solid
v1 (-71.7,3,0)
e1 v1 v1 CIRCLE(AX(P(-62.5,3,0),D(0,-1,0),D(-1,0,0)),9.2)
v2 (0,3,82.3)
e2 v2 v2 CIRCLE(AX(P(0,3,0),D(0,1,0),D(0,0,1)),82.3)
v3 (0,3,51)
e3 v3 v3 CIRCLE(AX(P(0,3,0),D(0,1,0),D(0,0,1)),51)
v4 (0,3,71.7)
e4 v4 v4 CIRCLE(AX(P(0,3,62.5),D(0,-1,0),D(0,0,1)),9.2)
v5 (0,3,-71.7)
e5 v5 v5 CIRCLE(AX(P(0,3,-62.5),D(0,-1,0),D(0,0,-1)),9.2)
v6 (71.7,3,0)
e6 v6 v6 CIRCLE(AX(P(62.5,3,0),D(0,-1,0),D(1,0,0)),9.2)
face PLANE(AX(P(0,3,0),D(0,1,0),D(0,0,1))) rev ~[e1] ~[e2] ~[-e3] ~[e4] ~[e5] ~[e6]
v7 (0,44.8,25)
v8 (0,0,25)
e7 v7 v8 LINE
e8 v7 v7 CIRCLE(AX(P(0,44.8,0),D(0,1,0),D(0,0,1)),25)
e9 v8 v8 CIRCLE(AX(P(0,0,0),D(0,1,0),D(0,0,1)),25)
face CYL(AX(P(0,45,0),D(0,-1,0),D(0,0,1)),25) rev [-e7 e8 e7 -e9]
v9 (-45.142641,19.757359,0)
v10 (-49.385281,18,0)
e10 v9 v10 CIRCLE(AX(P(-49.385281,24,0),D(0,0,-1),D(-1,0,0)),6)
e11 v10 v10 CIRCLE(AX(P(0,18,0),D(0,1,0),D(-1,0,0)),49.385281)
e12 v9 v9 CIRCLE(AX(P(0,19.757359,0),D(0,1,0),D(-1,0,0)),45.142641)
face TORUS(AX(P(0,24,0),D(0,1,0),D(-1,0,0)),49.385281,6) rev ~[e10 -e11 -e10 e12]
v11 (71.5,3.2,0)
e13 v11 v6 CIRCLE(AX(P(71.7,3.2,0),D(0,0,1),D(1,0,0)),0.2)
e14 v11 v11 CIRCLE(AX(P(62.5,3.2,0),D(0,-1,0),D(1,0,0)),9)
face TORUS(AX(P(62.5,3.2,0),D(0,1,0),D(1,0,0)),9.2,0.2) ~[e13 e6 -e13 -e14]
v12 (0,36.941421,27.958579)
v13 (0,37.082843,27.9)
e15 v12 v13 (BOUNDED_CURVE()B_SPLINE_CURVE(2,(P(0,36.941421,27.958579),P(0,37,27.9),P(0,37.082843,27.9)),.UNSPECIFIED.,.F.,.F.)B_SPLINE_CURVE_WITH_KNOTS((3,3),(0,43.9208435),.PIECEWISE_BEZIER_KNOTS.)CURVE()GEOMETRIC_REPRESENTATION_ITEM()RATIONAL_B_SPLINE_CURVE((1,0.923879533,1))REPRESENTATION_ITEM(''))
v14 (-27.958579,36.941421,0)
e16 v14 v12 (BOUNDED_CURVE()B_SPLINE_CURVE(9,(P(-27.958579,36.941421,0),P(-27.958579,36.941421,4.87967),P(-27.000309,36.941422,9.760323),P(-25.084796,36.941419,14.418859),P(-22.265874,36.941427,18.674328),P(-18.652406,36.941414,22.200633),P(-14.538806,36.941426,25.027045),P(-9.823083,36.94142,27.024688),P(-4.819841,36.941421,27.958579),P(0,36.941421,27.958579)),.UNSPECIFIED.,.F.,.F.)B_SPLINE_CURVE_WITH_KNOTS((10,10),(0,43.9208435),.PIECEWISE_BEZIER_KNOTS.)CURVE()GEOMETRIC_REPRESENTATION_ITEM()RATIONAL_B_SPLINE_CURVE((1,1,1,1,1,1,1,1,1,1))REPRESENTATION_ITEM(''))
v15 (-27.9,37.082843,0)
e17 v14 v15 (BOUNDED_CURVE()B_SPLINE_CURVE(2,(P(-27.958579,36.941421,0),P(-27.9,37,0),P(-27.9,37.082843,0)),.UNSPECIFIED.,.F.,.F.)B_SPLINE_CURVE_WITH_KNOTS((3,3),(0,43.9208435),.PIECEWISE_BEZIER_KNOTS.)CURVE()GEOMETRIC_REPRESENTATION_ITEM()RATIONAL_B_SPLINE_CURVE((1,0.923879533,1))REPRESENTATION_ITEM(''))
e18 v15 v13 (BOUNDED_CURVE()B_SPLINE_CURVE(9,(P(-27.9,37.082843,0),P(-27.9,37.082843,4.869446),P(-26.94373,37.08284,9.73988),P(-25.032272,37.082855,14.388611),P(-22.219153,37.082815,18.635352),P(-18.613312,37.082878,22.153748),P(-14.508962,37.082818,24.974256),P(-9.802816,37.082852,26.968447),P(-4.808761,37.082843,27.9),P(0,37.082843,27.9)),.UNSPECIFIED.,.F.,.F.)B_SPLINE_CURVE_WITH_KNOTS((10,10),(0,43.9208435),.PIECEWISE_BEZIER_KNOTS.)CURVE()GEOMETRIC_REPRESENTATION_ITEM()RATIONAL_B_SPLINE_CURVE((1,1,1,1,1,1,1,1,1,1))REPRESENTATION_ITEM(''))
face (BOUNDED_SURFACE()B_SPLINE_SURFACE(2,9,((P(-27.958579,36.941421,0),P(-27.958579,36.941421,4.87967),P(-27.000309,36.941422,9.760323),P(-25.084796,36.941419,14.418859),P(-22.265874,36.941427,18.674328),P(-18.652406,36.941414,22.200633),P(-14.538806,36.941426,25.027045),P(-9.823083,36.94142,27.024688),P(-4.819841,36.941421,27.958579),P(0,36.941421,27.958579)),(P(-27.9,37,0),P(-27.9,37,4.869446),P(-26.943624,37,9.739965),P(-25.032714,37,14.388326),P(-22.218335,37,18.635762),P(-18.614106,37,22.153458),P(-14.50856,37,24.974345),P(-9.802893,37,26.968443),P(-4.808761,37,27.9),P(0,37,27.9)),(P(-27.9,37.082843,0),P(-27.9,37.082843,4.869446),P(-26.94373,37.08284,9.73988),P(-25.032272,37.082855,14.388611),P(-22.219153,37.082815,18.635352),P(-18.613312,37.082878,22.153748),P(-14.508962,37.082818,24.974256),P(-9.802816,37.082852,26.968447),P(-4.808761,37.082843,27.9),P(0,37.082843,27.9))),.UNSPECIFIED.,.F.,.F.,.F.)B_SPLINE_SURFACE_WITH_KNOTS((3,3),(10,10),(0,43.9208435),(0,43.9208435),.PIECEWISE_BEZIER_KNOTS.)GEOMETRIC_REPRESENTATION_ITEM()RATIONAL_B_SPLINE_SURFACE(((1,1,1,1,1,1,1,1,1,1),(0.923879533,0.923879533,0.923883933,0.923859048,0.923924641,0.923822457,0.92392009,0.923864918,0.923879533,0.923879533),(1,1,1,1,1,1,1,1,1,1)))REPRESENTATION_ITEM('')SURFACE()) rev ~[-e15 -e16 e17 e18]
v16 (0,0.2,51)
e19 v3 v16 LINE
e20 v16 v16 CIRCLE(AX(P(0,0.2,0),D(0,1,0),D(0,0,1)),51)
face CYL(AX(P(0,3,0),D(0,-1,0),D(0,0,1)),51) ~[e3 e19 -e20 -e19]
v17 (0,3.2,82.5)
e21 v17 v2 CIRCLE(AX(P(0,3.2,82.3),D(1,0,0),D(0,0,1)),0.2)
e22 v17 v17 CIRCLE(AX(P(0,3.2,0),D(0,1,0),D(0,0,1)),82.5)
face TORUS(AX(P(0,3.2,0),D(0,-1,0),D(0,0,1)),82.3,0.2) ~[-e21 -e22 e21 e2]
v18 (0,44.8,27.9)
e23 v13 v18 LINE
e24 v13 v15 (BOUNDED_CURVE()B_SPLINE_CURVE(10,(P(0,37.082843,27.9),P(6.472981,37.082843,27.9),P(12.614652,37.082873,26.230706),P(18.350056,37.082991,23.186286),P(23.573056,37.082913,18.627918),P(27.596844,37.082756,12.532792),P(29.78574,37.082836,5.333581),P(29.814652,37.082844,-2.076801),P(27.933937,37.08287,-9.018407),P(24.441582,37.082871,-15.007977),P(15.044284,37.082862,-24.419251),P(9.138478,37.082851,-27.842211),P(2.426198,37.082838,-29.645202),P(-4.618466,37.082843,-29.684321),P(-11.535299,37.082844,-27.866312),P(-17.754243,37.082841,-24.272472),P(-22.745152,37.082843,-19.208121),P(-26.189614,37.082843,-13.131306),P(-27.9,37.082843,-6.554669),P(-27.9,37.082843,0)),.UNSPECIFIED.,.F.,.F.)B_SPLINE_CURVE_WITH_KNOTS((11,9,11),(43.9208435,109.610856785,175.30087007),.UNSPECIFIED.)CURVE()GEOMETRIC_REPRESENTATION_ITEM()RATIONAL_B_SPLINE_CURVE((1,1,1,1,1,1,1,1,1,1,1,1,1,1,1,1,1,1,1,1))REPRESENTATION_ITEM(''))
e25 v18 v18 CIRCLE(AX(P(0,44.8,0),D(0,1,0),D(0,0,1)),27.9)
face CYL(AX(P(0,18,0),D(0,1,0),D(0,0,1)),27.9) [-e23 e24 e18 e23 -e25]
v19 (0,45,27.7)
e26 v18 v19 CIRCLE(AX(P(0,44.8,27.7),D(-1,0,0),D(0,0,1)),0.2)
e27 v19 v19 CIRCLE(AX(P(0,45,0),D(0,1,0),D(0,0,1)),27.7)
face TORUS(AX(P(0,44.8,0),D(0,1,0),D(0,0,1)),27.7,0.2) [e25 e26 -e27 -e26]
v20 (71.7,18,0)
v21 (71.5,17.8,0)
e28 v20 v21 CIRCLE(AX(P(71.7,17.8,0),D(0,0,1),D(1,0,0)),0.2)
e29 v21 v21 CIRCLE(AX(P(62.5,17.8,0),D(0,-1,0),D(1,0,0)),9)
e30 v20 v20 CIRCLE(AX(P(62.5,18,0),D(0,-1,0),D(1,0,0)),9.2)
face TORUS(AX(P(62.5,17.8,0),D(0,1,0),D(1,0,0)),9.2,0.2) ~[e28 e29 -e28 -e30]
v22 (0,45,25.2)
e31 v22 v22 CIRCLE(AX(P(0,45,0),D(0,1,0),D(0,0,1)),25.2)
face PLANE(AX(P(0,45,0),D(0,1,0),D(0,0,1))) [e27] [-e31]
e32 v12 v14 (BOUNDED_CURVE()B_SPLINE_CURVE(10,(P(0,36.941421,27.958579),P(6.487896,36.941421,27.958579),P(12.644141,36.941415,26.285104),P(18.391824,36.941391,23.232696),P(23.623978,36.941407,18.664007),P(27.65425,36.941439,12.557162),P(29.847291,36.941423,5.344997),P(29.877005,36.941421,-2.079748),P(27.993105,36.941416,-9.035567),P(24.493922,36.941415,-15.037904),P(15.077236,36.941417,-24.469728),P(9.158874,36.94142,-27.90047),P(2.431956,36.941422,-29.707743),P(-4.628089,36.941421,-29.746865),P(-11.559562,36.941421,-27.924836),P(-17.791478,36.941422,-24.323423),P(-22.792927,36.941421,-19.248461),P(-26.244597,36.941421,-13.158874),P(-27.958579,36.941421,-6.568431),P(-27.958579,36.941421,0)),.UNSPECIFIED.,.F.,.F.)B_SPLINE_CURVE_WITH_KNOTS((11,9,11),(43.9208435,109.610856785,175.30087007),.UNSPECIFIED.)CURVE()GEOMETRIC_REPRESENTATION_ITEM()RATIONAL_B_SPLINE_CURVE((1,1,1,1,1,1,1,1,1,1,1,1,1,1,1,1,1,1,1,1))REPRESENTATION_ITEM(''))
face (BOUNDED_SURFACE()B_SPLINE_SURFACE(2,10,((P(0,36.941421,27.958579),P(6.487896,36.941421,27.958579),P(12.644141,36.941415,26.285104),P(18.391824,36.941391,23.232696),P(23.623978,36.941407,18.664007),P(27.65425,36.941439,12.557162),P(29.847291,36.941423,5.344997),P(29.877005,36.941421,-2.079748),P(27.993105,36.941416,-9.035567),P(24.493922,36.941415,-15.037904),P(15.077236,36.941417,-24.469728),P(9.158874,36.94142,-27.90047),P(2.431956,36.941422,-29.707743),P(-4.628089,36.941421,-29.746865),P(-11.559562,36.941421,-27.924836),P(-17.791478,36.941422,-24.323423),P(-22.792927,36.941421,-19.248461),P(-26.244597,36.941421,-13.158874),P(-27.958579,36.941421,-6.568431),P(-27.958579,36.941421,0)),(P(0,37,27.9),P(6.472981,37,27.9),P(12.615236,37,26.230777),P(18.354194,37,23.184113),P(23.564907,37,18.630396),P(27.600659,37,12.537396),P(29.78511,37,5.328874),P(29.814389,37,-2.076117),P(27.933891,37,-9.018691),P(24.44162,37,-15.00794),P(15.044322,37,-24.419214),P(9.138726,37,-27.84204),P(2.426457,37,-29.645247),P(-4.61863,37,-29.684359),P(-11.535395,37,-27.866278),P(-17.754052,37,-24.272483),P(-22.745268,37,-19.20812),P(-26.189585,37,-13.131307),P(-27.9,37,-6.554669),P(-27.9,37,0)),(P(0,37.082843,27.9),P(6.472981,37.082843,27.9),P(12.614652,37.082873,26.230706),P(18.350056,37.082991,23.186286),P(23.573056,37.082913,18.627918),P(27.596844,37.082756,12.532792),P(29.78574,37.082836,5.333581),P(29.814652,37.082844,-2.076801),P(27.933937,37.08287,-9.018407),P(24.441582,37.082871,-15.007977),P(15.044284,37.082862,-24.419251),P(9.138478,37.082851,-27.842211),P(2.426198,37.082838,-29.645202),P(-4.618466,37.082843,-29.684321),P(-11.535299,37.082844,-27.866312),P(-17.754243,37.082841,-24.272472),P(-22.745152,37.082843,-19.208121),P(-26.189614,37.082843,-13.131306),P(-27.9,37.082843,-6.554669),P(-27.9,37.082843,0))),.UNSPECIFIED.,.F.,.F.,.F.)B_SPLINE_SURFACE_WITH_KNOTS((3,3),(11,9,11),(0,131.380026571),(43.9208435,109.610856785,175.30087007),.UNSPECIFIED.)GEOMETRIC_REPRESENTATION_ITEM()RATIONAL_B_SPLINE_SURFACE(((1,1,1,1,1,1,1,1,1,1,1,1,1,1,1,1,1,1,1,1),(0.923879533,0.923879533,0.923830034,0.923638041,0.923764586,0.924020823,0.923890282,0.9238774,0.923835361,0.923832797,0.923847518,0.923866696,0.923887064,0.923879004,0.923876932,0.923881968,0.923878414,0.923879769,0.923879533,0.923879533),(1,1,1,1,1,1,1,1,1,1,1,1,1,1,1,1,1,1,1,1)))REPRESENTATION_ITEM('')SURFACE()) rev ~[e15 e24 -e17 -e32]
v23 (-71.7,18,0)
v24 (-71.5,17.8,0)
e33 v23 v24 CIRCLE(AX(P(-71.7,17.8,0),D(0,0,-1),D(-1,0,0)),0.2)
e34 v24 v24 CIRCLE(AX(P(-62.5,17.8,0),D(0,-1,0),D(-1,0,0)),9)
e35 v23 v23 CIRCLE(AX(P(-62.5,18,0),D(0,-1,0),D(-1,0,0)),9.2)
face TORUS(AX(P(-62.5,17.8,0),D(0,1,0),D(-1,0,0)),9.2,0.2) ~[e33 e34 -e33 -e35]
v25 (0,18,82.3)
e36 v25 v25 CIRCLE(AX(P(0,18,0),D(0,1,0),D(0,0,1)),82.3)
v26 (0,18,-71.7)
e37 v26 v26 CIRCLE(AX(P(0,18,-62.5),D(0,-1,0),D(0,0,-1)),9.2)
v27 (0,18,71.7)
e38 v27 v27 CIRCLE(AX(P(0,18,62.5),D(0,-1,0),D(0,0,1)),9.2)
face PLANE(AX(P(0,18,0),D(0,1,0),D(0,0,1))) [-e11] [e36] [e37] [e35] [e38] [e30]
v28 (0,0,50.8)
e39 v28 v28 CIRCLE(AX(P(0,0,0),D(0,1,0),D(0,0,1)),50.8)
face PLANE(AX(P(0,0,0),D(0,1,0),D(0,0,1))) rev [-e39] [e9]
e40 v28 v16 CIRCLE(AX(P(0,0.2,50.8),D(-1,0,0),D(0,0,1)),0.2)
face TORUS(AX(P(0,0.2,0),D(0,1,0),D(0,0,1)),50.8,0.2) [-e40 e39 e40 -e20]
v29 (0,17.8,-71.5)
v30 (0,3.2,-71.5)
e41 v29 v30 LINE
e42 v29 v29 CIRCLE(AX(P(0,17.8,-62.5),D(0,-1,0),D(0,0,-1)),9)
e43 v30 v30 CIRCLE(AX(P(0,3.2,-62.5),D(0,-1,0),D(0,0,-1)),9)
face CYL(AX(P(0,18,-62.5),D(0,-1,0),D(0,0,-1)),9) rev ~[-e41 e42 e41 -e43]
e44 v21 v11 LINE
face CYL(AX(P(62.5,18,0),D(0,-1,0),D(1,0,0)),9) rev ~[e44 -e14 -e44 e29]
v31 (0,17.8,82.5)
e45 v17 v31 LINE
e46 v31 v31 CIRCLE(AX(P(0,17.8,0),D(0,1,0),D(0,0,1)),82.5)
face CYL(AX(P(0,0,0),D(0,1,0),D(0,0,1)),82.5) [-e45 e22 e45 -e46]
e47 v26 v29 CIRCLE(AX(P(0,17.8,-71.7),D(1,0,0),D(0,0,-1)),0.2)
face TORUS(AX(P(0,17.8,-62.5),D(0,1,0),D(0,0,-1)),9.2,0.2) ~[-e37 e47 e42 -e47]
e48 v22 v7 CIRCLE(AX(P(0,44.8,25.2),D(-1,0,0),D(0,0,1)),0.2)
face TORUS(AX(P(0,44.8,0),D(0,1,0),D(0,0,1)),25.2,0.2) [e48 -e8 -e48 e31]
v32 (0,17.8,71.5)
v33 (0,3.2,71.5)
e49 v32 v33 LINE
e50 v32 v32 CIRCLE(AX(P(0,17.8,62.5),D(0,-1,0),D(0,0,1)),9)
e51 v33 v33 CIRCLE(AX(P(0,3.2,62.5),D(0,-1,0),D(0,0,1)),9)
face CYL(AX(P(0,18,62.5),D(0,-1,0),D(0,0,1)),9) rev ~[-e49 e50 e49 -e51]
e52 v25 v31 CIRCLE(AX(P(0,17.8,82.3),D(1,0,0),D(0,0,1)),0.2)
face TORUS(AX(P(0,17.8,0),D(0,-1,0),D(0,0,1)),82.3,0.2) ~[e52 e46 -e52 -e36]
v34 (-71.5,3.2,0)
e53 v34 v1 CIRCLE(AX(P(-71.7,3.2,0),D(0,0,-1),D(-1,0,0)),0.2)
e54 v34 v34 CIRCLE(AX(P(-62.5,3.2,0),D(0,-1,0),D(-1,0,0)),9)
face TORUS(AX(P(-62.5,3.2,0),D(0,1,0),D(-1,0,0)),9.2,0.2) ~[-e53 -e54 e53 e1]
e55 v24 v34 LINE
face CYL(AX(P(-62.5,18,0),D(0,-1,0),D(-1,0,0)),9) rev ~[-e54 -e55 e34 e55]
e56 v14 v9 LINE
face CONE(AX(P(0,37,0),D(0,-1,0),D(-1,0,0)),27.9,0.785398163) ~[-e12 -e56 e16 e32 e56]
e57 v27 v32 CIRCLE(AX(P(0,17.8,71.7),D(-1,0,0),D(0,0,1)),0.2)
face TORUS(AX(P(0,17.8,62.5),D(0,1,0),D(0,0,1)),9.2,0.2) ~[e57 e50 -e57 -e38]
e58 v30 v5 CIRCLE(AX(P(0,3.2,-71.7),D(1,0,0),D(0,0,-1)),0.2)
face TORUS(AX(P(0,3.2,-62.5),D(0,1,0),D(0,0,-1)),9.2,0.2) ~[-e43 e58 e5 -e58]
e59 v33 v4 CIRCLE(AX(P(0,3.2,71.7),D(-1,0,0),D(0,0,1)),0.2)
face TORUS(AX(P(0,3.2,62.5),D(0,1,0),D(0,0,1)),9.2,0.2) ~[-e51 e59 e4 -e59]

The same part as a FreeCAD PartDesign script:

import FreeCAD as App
import Part
import Sketcher

V = App.Vector
Q = App.Units.Quantity


def edges_at(feature, points):
    """Names of the edges that pass closest to the given points."""
    edges = feature.Shape.Edges
    near = lambda p: min(range(len(edges)), key=lambda i: edges[i].distToShape(Part.Vertex(*p))[0])
    return sorted({f"Edge{near(p) + 1}" for p in points})

doc = App.newDocument("Part")
params = doc.addObject("Spreadsheet::Sheet", "Params")
for row, (alias, value) in enumerate([
    ("sketch1_width", "45 mm"),
    ("sketch1_width2", "18 mm"),
    ("sketch1_height", "2.9 mm"),
    ("sketch1_height2", "54.6 mm"),
    ("revolution_angle", "360 deg"),
    ("sketch2_width", "3 mm"),
    ("sketch2_height", "31.5 mm"),
    ("groove_angle", "360 deg"),
    ("sketch3_diameter", "18 mm"),
    ("hole_diameter", "18 mm"),
    ("sketch4_width", "19 mm"),
    ("revolution2_angle", "360 deg"),
    ("fillet_radius", "6 mm"),
    ("fillet2_radius", "0.2 mm"),
], start=1):
    params.set(f"A{row}", alias)
    params.set(f"B{row}", "=" + value)
    params.setAlias(f"B{row}", alias)

body = doc.addObject("PartDesign::Body", "Body")

sketch1 = doc.addObject("Sketcher::SketchObject", "Sketch")
body.addObject(sketch1)
sketch1.AttachmentSupport = (doc.YZ_Plane, [""])
sketch1.MapMode = "FlatFace"
sketch1.addGeometry([
    Part.LineSegment(V(0, 25, 0), V(45, 25, 0)),
    Part.LineSegment(V(45, 25, 0), V(45, 27.9, 0)),
    Part.LineSegment(V(45, 27.9, 0), V(18, 27.9, 0)),
    Part.LineSegment(V(18, 27.9, 0), V(18, 82.5, 0)),
    Part.LineSegment(V(18, 82.5, 0), V(0, 82.5, 0)),
    Part.LineSegment(V(0, 82.5, 0), V(0, 25, 0)),
], False)
sketch1.addConstraint([
    Sketcher.Constraint("Coincident", 0, 2, 1, 1),
    Sketcher.Constraint("Coincident", 1, 2, 2, 1),
    Sketcher.Constraint("Coincident", 2, 2, 3, 1),
    Sketcher.Constraint("Coincident", 3, 2, 4, 1),
    Sketcher.Constraint("Coincident", 4, 2, 5, 1),
    Sketcher.Constraint("Coincident", 5, 2, 0, 1),
    Sketcher.Constraint("Horizontal", 0),
    Sketcher.Constraint("Vertical", 1),
    Sketcher.Constraint("Horizontal", 2),
    Sketcher.Constraint("Vertical", 3),
    Sketcher.Constraint("Horizontal", 4),
    Sketcher.Constraint("Vertical", 5),
    Sketcher.Constraint("PointOnObject", 4, 2, -2),
    Sketcher.Constraint("DistanceX", 0, 1, 0, 2, Q("45 mm")),
    Sketcher.Constraint("DistanceX", 4, 2, 4, 1, Q("18 mm")),
    Sketcher.Constraint("DistanceY", 1, 1, 1, 2, Q("2.9 mm")),
    Sketcher.Constraint("DistanceY", 3, 1, 3, 2, Q("54.6 mm")),
    Sketcher.Constraint("DistanceY", -1, 1, 0, 2, Q("25 mm")),
])
sketch1.setExpression("Constraints[13]", "Params.sketch1_width")
sketch1.setExpression("Constraints[14]", "Params.sketch1_width2")
sketch1.setExpression("Constraints[15]", "Params.sketch1_height")
sketch1.setExpression("Constraints[16]", "Params.sketch1_height2")
revolution = doc.addObject("PartDesign::Revolution", "Revolution")
body.addObject(revolution)
revolution.Profile = sketch1
revolution.ReferenceAxis = (sketch1, ["H_Axis"])
revolution.setExpression("Angle", "Params.revolution_angle")

sketch2 = doc.addObject("Sketcher::SketchObject", "Sketch001")
body.addObject(sketch2)
sketch2.AttachmentSupport = (doc.YZ_Plane, [""])
sketch2.MapMode = "FlatFace"
sketch2.addGeometry([
    Part.LineSegment(V(3, 51, 0), V(3, 82.5, 0)),
    Part.LineSegment(V(3, 82.5, 0), V(0, 82.5, 0)),
    Part.LineSegment(V(0, 82.5, 0), V(0, 51, 0)),
    Part.LineSegment(V(0, 51, 0), V(3, 51, 0)),
], False)
sketch2.addConstraint([
    Sketcher.Constraint("Coincident", 0, 2, 1, 1),
    Sketcher.Constraint("Coincident", 1, 2, 2, 1),
    Sketcher.Constraint("Coincident", 2, 2, 3, 1),
    Sketcher.Constraint("Coincident", 3, 2, 0, 1),
    Sketcher.Constraint("Vertical", 0),
    Sketcher.Constraint("Horizontal", 1),
    Sketcher.Constraint("Vertical", 2),
    Sketcher.Constraint("Horizontal", 3),
    Sketcher.Constraint("PointOnObject", 1, 2, -2),
    Sketcher.Constraint("DistanceX", 1, 2, 1, 1, Q("3 mm")),
    Sketcher.Constraint("DistanceY", 0, 1, 0, 2, Q("31.5 mm")),
    Sketcher.Constraint("DistanceY", -1, 1, 2, 2, Q("51 mm")),
])
sketch2.setExpression("Constraints[9]", "Params.sketch2_width")
sketch2.setExpression("Constraints[10]", "Params.sketch2_height")
groove = doc.addObject("PartDesign::Groove", "Groove")
body.addObject(groove)
groove.Profile = sketch2
groove.ReferenceAxis = (sketch2, ["H_Axis"])
groove.setExpression("Angle", "Params.groove_angle")

sketch3 = doc.addObject("Sketcher::SketchObject", "Sketch002")
body.addObject(sketch3)
sketch3.AttachmentSupport = (doc.XZ_Plane, [""])
sketch3.MapMode = "FlatFace"
sketch3.AttachmentOffset = App.Placement(V(0, 0, -18), App.Rotation())
sketch3.addGeometry(Part.Circle(V(0, 62, 0), V(0, 0, 1), 9), False)
sketch3.addConstraint([
    Sketcher.Constraint("PointOnObject", 0, 3, -2),
    Sketcher.Constraint("Diameter", 0, Q("18 mm")),
    Sketcher.Constraint("DistanceY", -1, 1, 0, 3, Q("62.5 mm")),
])
sketch3.setExpression("Constraints[1]", "Params.sketch3_diameter")
doc.recompute()
hole = doc.addObject("PartDesign::Hole", "Hole")
body.addObject(hole)
hole.Profile = sketch3
hole.ThreadType = "None"
hole.setExpression("Diameter", "Params.hole_diameter")
hole.DepthType = "ThroughAll"
hole.Reversed = True
doc.recompute()

polarpattern = doc.addObject("PartDesign::PolarPattern", "PolarPattern")
body.addObject(polarpattern)
polarpattern.Originals = [hole]
polarpattern.Axis = (doc.Y_Axis, [""])
polarpattern.Angle = 360
polarpattern.Occurrences = 4
body.Tip = polarpattern

sketch4 = doc.addObject("Sketcher::SketchObject", "Sketch003")
body.addObject(sketch4)
sketch4.AttachmentSupport = (doc.XY_Plane, [""])
sketch4.MapMode = "FlatFace"
sketch4.addGeometry([
    Part.LineSegment(V(-47, 18, 0), V(-28, 18, 0)),
    Part.LineSegment(V(-28, 18, 0), V(-28, 37, 0)),
    Part.LineSegment(V(-28, 37, 0), V(-47, 18, 0)),
], False)
sketch4.addConstraint([
    Sketcher.Constraint("Coincident", 0, 2, 1, 1),
    Sketcher.Constraint("Coincident", 1, 2, 2, 1),
    Sketcher.Constraint("Coincident", 2, 2, 0, 1),
    Sketcher.Constraint("Horizontal", 0),
    Sketcher.Constraint("Vertical", 1),
    Sketcher.Constraint("Equal", 0, 1),
    Sketcher.Constraint("DistanceX", 0, 1, 0, 2, Q("19 mm")),
    Sketcher.Constraint("DistanceY", -1, 1, 0, 2, Q("18 mm")),
    Sketcher.Constraint("DistanceX", 0, 2, -1, 1, Q("27.9 mm")),
])
sketch4.setExpression("Constraints[6]", "Params.sketch4_width")
revolution2 = doc.addObject("PartDesign::Revolution", "Revolution001")
body.addObject(revolution2)
revolution2.Profile = sketch4
revolution2.ReferenceAxis = (sketch4, ["V_Axis"])
revolution2.setExpression("Angle", "Params.revolution2_angle")
doc.recompute()

fillet = doc.addObject("PartDesign::Fillet", "Fillet")
body.addObject(fillet)
fillet.Base = (revolution2, edges_at(revolution2, [(46.9, 18, 0)]))
fillet.setExpression("Radius", "Params.fillet_radius")
doc.recompute()

fillet2 = doc.addObject("PartDesign::Fillet", "Fillet001")
body.addObject(fillet2)
fillet2.Base = (fillet, edges_at(fillet, [
    (0, 45, -25),
    (0, 18, -82.5),
    (0, 3, -82.5),
    (0, 0, -51),
    (0, 18, 53.5),
    (0, 3, 53.5),
    (0, 45, -27.9),
    (-19.728, 37, 19.728),
    (19.728, 37, -19.728),
    (53.5, 18, 0),
    (-53.5, 18, 0),
    (0, 18, -53.5),
    (-53.5, 3, 0),
    (53.5, 3, 0),
    (0, 3, -53.5),
]))
fillet2.setExpression("Radius", "Params.fillet2_radius")

doc.recompute()
